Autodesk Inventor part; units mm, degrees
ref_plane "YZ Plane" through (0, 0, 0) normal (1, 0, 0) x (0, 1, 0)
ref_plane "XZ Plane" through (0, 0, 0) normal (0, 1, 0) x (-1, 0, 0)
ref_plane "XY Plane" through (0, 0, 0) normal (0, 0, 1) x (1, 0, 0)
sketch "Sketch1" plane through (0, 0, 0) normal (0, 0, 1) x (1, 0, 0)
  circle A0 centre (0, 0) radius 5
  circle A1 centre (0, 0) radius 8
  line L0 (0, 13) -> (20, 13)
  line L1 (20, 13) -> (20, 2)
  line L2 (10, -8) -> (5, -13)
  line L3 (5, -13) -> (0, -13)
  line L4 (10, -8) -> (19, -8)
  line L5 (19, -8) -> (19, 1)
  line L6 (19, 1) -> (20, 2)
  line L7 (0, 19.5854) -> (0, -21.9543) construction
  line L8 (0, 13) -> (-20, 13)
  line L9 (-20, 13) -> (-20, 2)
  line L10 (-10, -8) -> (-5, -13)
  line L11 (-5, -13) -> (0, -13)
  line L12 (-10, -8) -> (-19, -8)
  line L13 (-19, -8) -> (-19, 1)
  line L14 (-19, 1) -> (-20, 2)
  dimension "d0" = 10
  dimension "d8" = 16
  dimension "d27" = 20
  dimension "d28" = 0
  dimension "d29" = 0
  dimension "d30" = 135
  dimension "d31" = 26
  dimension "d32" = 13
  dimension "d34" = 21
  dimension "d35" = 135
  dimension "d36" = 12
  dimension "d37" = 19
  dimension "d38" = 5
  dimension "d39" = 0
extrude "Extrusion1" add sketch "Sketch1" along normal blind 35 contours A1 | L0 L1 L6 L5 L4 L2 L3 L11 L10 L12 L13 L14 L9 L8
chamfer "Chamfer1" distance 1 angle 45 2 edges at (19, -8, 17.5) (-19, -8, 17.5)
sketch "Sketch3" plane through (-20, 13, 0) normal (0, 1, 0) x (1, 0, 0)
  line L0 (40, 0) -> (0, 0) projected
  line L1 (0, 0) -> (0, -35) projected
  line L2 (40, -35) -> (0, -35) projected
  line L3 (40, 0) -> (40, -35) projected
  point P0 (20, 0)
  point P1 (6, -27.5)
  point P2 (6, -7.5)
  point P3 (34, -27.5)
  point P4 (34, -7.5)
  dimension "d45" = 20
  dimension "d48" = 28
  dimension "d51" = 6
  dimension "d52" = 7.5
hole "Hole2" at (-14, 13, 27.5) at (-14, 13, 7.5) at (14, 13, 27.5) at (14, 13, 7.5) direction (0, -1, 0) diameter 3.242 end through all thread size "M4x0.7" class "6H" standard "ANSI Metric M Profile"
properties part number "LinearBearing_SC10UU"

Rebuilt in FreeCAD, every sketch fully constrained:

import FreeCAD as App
import Part
import Sketcher
from FreeCAD import Vector
Q = App.Units.Quantity


def edges_at(feature, points):
    """Names of the edges that pass closest to the given points."""
    edges = feature.Shape.Edges
    near = lambda p: min(range(len(edges)), key=lambda i: edges[i].distToShape(Part.Vertex(*p))[0])
    return sorted({f"Edge{near(p) + 1}" for p in points})


def add_polygon(sketch, points):
    """Adds a closed chain of lines whose ends are joined by coincident constraints."""
    first, n = sketch.GeometryCount, len(points)
    for a, b in zip(points, points[1:] + points[:1]):
        sketch.addGeometry(Part.LineSegment(App.Vector(*a, 0), App.Vector(*b, 0)), False)
    for i in range(n):
        sketch.addConstraint(Sketcher.Constraint("Coincident", first + i, 2, first + (i + 1) % n, 1))

doc = App.newDocument("Part")
body = doc.addObject("PartDesign::Body", "Body")

# Sketch on XY plane
sketch1 = body.newObject("Sketcher::SketchObject", "Sketch")
sketch1.AttachmentSupport = (doc.getObject("XY_Plane"), [""])
sketch1.MapMode = "FlatFace"
add_polygon(sketch1, [(20, 13), (-20, 13), (-20, 2), (-19, 1), (-19, -8), (-10, -8), (-5, -13), (5, -13), (10, -8), (19, -8), (19, 1), (20, 2)])  # lines 0-11
sketch1.addGeometry(Part.Circle(Vector(0, 0, 0), Vector(0, 0, 1), 5), False)  # 12
sketch1.addConstraint(Sketcher.Constraint("Horizontal", 0))
sketch1.addConstraint(Sketcher.Constraint("Vertical", 1))
sketch1.addConstraint(Sketcher.Constraint("Vertical", 3))
sketch1.addConstraint(Sketcher.Constraint("Horizontal", 4))
sketch1.addConstraint(Sketcher.Constraint("Horizontal", 6))
sketch1.addConstraint(Sketcher.Constraint("Horizontal", 8))
sketch1.addConstraint(Sketcher.Constraint("Vertical", 9))
sketch1.addConstraint(Sketcher.Constraint("Vertical", 11))
sketch1.addConstraint(Sketcher.Constraint("Coincident", 12, 3, -1, 1))
sketch1.addConstraint(Sketcher.Constraint("Symmetric", 4, 2, 7, 2, -2))
sketch1.addConstraint(Sketcher.Constraint("Symmetric", 2, 2, 9, 2, -2))
sketch1.addConstraint(Sketcher.Constraint("Symmetric", 1, 2, 10, 2, -2))
sketch1.addConstraint(Sketcher.Constraint("Parallel", 2, 5))
sketch1.addConstraint(Sketcher.Constraint("Perpendicular", 5, 7))
sketch1.addConstraint(Sketcher.Constraint("Parallel", 7, 10))
sketch1.addConstraint(Sketcher.Constraint("Equal", 8, 3))
sketch1.addConstraint(Sketcher.Constraint("Diameter", 12, Q("10 mm")))
sketch1.addConstraint(Sketcher.Constraint("DistanceX", 6, 1, 6, 2, Q("10 mm")))
sketch1.addConstraint(Sketcher.Constraint("DistanceX", 0, 2, -1, 1, Q("20 mm")))
sketch1.addConstraint(Sketcher.Constraint("DistanceY", -1, 1, 0, 2, Q("13 mm")))
sketch1.addConstraint(Sketcher.Constraint("DistanceX", 2, 2, -1, 1, Q("19 mm")))
sketch1.addConstraint(Sketcher.Constraint("DistanceX", 4, 2, -1, 1, Q("10 mm")))
sketch1.addConstraint(Sketcher.Constraint("DistanceY", 5, 2, -1, 1, Q("13 mm")))
pad1 = body.newObject("PartDesign::Pad", "Pad")
pad1.Profile = sketch1
pad1.Length = 35
doc.recompute()

chamfer = body.newObject("PartDesign::Chamfer", "Chamfer")
chamfer.Base = (pad1, edges_at(pad1, [(19, -8, 17.5), (-19, -8, 17.5)]))
chamfer.Size = 1

# Sketch on XZ plane
sketch2 = body.newObject("Sketcher::SketchObject", "Sketch001")
sketch2.AttachmentSupport = (doc.getObject("XZ_Plane"), [""])
sketch2.MapMode = "FlatFace"
sketch2.AttachmentOffset = App.Placement(Vector(0, 0, -13), App.Rotation())
sketch2.addGeometry(Part.Circle(Vector(-14, 27.5, 0), Vector(0, 0, 1), 1.6), False)
sketch2.addGeometry(Part.Circle(Vector(-14, 7.5, 0), Vector(0, 0, 1), 1.6), False)
sketch2.addGeometry(Part.Circle(Vector(14, 27.5, 0), Vector(0, 0, 1), 1.6), False)
sketch2.addGeometry(Part.Circle(Vector(14, 7.5, 0), Vector(0, 0, 1), 1.6), False)
sketch2.addConstraint(Sketcher.Constraint("Equal", 0, 1))
sketch2.addConstraint(Sketcher.Constraint("Equal", 1, 2))
sketch2.addConstraint(Sketcher.Constraint("Equal", 2, 3))
sketch2.addConstraint(Sketcher.Constraint("Symmetric", 0, 3, 2, 3, -2))
sketch2.addConstraint(Sketcher.Constraint("Symmetric", 1, 3, 3, 3, -2))
sketch2.addConstraint(Sketcher.Constraint("Vertical", 0, 3, 1, 3))
sketch2.addConstraint(Sketcher.Constraint("Diameter", 0, Q("3.242 mm")))
sketch2.addConstraint(Sketcher.Constraint("DistanceX", 0, 3, -1, 1, Q("14 mm")))
sketch2.addConstraint(Sketcher.Constraint("DistanceY", 1, 3, 0, 3, Q("20 mm")))
sketch2.addConstraint(Sketcher.Constraint("DistanceY", -1, 1, 0, 3, Q("27.5 mm")))
doc.recompute()
hole = body.newObject("PartDesign::Hole", "Hole")
hole.Profile = sketch2
hole.ThreadType = "None"
hole.Diameter = 3.242
hole.DepthType = "ThroughAll"
hole.Reversed = True

doc.recompute()
